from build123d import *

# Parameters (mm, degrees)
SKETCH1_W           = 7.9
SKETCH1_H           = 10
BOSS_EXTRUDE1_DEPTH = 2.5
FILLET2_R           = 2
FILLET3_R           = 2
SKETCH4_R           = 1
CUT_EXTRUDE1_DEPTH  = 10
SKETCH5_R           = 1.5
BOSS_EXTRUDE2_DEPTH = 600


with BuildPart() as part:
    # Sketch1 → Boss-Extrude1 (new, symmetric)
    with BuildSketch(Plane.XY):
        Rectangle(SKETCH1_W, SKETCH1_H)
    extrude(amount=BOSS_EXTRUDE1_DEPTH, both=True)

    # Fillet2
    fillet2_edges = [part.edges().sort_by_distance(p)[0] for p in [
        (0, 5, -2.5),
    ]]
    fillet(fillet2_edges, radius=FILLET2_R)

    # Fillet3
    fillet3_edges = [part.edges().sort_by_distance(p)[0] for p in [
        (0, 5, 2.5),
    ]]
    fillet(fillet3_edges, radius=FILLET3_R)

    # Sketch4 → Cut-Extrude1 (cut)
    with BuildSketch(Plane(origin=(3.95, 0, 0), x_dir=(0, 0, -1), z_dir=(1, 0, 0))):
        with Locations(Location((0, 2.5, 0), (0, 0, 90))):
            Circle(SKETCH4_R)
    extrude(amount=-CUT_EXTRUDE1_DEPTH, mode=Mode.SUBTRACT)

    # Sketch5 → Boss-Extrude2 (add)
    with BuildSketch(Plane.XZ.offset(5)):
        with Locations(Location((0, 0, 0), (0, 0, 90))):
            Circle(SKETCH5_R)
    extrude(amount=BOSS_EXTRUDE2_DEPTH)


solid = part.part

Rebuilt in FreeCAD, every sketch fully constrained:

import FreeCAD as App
import Part
import Sketcher
from FreeCAD import Vector
Q = App.Units.Quantity


def edges_at(feature, points):
    """Names of the edges that pass closest to the given points."""
    edges = feature.Shape.Edges
    near = lambda p: min(range(len(edges)), key=lambda i: edges[i].distToShape(Part.Vertex(*p))[0])
    return sorted({f"Edge{near(p) + 1}" for p in points})


def add_polygon(sketch, points):
    """Adds a closed chain of lines whose ends are joined by coincident constraints."""
    first, n = sketch.GeometryCount, len(points)
    for a, b in zip(points, points[1:] + points[:1]):
        sketch.addGeometry(Part.LineSegment(App.Vector(*a, 0), App.Vector(*b, 0)), False)
    for i in range(n):
        sketch.addConstraint(Sketcher.Constraint("Coincident", first + i, 2, first + (i + 1) % n, 1))

doc = App.newDocument("Part")
params = doc.addObject("Spreadsheet::Sheet", "Params")
for row, (alias, value) in enumerate([
    ("sketch1_height", "10 mm"),
    ("sketch1_width", "7.9 mm"),
    ("pad1_length", "5 mm"),
    ("fillet_radius", "2 mm"),
    ("fillet2_radius", "2 mm"),
    ("sketch2_diameter", "2 mm"),
    ("pocket1_length", "10 mm"),
    ("sketch3_diameter", "3 mm"),
    ("pad2_length", "600 mm"),
], start=1):
    params.set(f"A{row}", alias)
    params.set(f"B{row}", "=" + value)
    params.setAlias(f"B{row}", alias)

body = doc.addObject("PartDesign::Body", "Body")

# Sketch on XY plane
sketch1 = body.newObject("Sketcher::SketchObject", "Sketch")
sketch1.AttachmentSupport = (doc.getObject("XY_Plane"), [""])
sketch1.MapMode = "FlatFace"
add_polygon(sketch1, [(-4, 5), (-4, -5), (4, -5), (4, 5)])  # lines 0-3
sketch1.addConstraint(Sketcher.Constraint("Vertical", 0))
sketch1.addConstraint(Sketcher.Constraint("Horizontal", 1))
sketch1.addConstraint(Sketcher.Constraint("Vertical", 2))
sketch1.addConstraint(Sketcher.Constraint("Horizontal", 3))
sketch1.addConstraint(Sketcher.Constraint("Symmetric", 0, 2, 2, 2, -1, 1))
sketch1.addConstraint(Sketcher.Constraint("DistanceY", 0, 2, 0, 1, Q("10 mm")))
sketch1.addConstraint(Sketcher.Constraint("DistanceX", 1, 1, 1, 2, Q("7.9 mm")))
sketch1.setExpression("Constraints[9]", "Params.sketch1_height")
sketch1.setExpression("Constraints[10]", "Params.sketch1_width")
pad1 = body.newObject("PartDesign::Pad", "Pad")
pad1.Profile = sketch1
pad1.setExpression("Length", "Params.pad1_length")
pad1.Midplane = True
doc.recompute()

fillet = body.newObject("PartDesign::Fillet", "Fillet")
fillet.Base = (pad1, edges_at(pad1, [(0, 5, -2.5)]))
fillet.setExpression("Radius", "Params.fillet_radius")
doc.recompute()

fillet2 = body.newObject("PartDesign::Fillet", "Fillet001")
fillet2.Base = (fillet, edges_at(fillet, [(0, 5, 2.5)]))
fillet2.setExpression("Radius", "Params.fillet2_radius")

# Sketch on YZ plane
sketch2 = body.newObject("Sketcher::SketchObject", "Sketch001")
sketch2.AttachmentSupport = (doc.getObject("YZ_Plane"), [""])
sketch2.MapMode = "FlatFace"
sketch2.AttachmentOffset = App.Placement(Vector(0, 0, 3.95), App.Rotation())
sketch2.addGeometry(Part.Circle(Vector(2.5, 0, 0), Vector(0, 0, 1), 1), False)
sketch2.addConstraint(Sketcher.Constraint("PointOnObject", 0, 3, -1))
sketch2.addConstraint(Sketcher.Constraint("Diameter", 0, Q("2 mm")))
sketch2.addConstraint(Sketcher.Constraint("DistanceX", -1, 1, 0, 3, Q("2.5 mm")))
sketch2.setExpression("Constraints[1]", "Params.sketch2_diameter")
pocket1 = body.newObject("PartDesign::Pocket", "Pocket")
pocket1.Profile = sketch2
pocket1.setExpression("Length", "Params.pocket1_length")

# Sketch on XZ plane
sketch3 = body.newObject("Sketcher::SketchObject", "Sketch002")
sketch3.AttachmentSupport = (doc.getObject("XZ_Plane"), [""])
sketch3.MapMode = "FlatFace"
sketch3.AttachmentOffset = App.Placement(Vector(0, 0, 5), App.Rotation())
sketch3.addGeometry(Part.Circle(Vector(0, 0, 0), Vector(0, 0, 1), 1.5), False)
sketch3.addConstraint(Sketcher.Constraint("Coincident", 0, 3, -1, 1))
sketch3.addConstraint(Sketcher.Constraint("Diameter", 0, Q("3 mm")))
sketch3.setExpression("Constraints[1]", "Params.sketch3_diameter")
pad2 = body.newObject("PartDesign::Pad", "Pad001")
pad2.Profile = sketch3
pad2.setExpression("Length", "Params.pad2_length")

doc.recompute()
